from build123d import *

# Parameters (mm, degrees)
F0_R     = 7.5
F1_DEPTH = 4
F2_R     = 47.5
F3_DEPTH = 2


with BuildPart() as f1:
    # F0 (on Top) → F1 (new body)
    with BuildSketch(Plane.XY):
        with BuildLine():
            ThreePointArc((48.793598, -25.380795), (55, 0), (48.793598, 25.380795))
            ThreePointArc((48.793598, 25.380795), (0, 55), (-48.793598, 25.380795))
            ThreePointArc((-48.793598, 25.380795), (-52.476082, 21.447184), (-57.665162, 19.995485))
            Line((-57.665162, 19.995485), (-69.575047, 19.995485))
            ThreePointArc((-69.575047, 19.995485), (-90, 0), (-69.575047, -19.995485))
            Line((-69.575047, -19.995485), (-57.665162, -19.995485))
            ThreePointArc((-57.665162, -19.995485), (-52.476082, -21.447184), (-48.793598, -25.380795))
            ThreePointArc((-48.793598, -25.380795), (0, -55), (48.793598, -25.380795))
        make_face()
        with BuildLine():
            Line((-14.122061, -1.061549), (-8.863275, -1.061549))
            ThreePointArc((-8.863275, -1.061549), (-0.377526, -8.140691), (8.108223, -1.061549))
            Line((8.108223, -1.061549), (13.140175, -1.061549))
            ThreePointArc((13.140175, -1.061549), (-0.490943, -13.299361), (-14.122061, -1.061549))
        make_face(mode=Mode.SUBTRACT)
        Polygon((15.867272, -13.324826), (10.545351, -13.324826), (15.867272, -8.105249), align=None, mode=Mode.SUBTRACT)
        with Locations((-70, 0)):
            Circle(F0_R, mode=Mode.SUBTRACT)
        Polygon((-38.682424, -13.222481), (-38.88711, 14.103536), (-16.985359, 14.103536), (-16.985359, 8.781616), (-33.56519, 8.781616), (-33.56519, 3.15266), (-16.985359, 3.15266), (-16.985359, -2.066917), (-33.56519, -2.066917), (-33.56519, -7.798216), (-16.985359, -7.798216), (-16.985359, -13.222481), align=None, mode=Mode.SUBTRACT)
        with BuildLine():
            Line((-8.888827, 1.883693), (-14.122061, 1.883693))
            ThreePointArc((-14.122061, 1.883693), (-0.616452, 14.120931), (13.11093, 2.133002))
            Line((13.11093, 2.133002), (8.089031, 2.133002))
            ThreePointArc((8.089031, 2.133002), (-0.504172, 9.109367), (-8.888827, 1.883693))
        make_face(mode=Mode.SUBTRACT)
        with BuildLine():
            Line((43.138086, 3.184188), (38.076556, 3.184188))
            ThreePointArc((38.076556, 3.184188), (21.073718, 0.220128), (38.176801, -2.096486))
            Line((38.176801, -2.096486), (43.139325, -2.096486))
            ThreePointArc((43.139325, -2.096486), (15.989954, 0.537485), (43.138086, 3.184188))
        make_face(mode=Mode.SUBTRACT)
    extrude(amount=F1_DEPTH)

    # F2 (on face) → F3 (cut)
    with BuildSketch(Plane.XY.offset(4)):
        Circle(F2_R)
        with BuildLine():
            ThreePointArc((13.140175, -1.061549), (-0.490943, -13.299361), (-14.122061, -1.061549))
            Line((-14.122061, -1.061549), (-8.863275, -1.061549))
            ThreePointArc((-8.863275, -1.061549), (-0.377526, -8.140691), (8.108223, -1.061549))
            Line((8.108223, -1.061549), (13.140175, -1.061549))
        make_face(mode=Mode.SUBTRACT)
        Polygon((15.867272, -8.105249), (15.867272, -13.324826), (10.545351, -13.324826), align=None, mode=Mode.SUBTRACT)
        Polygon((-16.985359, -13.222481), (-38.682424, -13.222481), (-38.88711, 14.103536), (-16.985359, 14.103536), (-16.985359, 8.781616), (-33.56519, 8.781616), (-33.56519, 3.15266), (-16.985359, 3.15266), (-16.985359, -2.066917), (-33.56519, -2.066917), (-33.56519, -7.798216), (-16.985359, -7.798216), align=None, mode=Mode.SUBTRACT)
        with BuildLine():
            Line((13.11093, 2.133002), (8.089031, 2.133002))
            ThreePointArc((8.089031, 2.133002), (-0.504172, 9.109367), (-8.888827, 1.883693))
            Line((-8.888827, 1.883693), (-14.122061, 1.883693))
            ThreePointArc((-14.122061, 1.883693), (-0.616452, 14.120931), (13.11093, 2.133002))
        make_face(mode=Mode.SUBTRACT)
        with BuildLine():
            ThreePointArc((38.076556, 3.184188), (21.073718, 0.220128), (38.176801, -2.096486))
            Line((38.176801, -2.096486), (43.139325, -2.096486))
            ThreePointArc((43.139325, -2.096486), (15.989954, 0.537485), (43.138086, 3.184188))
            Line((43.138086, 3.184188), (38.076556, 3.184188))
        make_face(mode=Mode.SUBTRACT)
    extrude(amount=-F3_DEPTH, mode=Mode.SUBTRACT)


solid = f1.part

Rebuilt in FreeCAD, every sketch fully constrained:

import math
import FreeCAD as App
import Part
import Sketcher

V = App.Vector

doc = App.newDocument("Part")
body = doc.addObject("PartDesign::Body", "Body")

# Sketch on XY plane
sketch1 = body.newObject("Sketcher::SketchObject", "Sketch")
sketch1.AttachmentSupport = (doc.getObject("XY_Plane"), [""])
sketch1.MapMode = "FlatFace"
sketch1.addGeometry([
    Part.ArcOfCircle(Part.Circle(V(0, 0, 0), V(0, 0, 1), 55), math.radians(-27), math.radians(27)),  # 0
    Part.ArcOfCircle(Part.Circle(V(0, 0, 0), V(0, 0, 1), 55), math.radians(27), math.radians(153)),  # 1
    Part.ArcOfCircle(Part.Circle(V(-57.7, 30, 0), V(0, 0, 1), 10), math.radians(-90), math.radians(-27)),  # 2
    Part.LineSegment(V(-57.7, 20, 0), V(-69.6, 20, 0)),  # 3
    Part.ArcOfCircle(Part.Circle(V(-70, 0, 0), V(0, 0, 1), 20), math.radians(89), math.radians(271)),  # 4
    Part.LineSegment(V(-69.6, -20, 0), V(-57.7, -20, 0)),  # 5
    Part.ArcOfCircle(Part.Circle(V(-57.7, -30, 0), V(0, 0, 1), 10), math.radians(27), math.radians(90)),  # 6
    Part.ArcOfCircle(Part.Circle(V(0, 0, 0), V(0, 0, 1), 55), math.radians(-153), math.radians(-27)),  # 7
    Part.Circle(V(-70, 0, 0), V(0, 0, 1), 7.5),  # 8
    Part.LineSegment(V(-17, -13.2, 0), V(-38.7, -13.2, 0)),  # 9
    Part.LineSegment(V(-38.7, -13.2, 0), V(-38.9, 14.1, 0)),  # 10
    Part.LineSegment(V(-38.9, 14.1, 0), V(-17, 14.1, 0)),  # 11
    Part.LineSegment(V(-17, 14.1, 0), V(-17, 8.8, 0)),  # 12
    Part.LineSegment(V(-17, 8.8, 0), V(-33.6, 8.8, 0)),  # 13
    Part.LineSegment(V(-33.6, 8.8, 0), V(-33.6, 3.2, 0)),  # 14
    Part.LineSegment(V(-33.6, 3.2, 0), V(-17, 3.2, 0)),  # 15
    Part.LineSegment(V(-17, 3.2, 0), V(-17, -2.1, 0)),  # 16
    Part.LineSegment(V(-17, -2.1, 0), V(-33.6, -2.1, 0)),  # 17
    Part.LineSegment(V(-33.6, -2.1, 0), V(-33.6, -7.8, 0)),  # 18
    Part.LineSegment(V(-33.6, -7.8, 0), V(-17, -7.8, 0)),  # 19
    Part.LineSegment(V(-17, -7.8, 0), V(-17, -13.2, 0)),  # 20
    Part.ArcOfCircle(Part.Circle(V(-0.5, 0.4, 0), V(0, 0, 1), 13.7), math.radians(-174), math.radians(-6)),  # 21
    Part.LineSegment(V(-14.1, -1.1, 0), V(-8.9, -1.1, 0)),  # 22
    Part.ArcOfCircle(Part.Circle(V(-0.4, 0.5, 0), V(0, 0, 1), 8.6), math.radians(-170), math.radians(-10)),  # 23
    Part.LineSegment(V(8.1, -1.1, 0), V(13.1, -1.1, 0)),  # 24
    Part.LineSegment(V(15.9, -8.1, 0), V(15.9, -13.3, 0)),  # 25
    Part.LineSegment(V(15.9, -13.3, 0), V(10.5, -13.3, 0)),  # 26
    Part.LineSegment(V(10.5, -13.3, 0), V(15.9, -8.1, 0)),  # 27
    Part.ArcOfCircle(Part.Circle(V(29.7, 0.5, 0), V(0, 0, 1), 13.7), math.radians(11), math.radians(349)),  # 28
    Part.LineSegment(V(43.1, 3.2, 0), V(38.1, 3.2, 0)),  # 29
    Part.ArcOfCircle(Part.Circle(V(29.8, 0.4, 0), V(0, 0, 1), 8.7), math.radians(19), math.radians(343)),  # 30
    Part.LineSegment(V(38.2, -2.1, 0), V(43.1, -2.1, 0)),  # 31
    Part.ArcOfCircle(Part.Circle(V(-0.4, 0.5, 0), V(0, 0, 1), 8.6), math.radians(11), math.radians(171)),  # 32
    Part.LineSegment(V(-8.9, 1.9, 0), V(-14.1, 1.9, 0)),  # 33
    Part.ArcOfCircle(Part.Circle(V(-0.5, 0.4, 0), V(0, 0, 1), 13.7), math.radians(7), math.radians(174)),  # 34
    Part.LineSegment(V(13.1, 2.1, 0), V(8.1, 2.1, 0)),  # 35
], False)
sketch1.addConstraint([
    Sketcher.Constraint("Tangent", 0, 2, 1, 1),
    Sketcher.Constraint("Tangent", 1, 2, 2, 2),
    Sketcher.Constraint("Tangent", 2, 1, 3, 1),
    Sketcher.Constraint("Coincident", 3, 2, 4, 1),
    Sketcher.Constraint("Coincident", 4, 2, 5, 1),
    Sketcher.Constraint("Tangent", 5, 2, 6, 2),
    Sketcher.Constraint("Tangent", 6, 1, 7, 1),
    Sketcher.Constraint("Tangent", 7, 2, 0, 1),
    Sketcher.Constraint("Coincident", 9, 2, 10, 1),
    Sketcher.Constraint("Coincident", 10, 2, 11, 1),
    Sketcher.Constraint("Coincident", 11, 2, 12, 1),
    Sketcher.Constraint("Coincident", 12, 2, 13, 1),
    Sketcher.Constraint("Coincident", 13, 2, 14, 1),
    Sketcher.Constraint("Coincident", 14, 2, 15, 1),
    Sketcher.Constraint("Coincident", 15, 2, 16, 1),
    Sketcher.Constraint("Coincident", 16, 2, 17, 1),
    Sketcher.Constraint("Coincident", 17, 2, 18, 1),
    Sketcher.Constraint("Coincident", 18, 2, 19, 1),
    Sketcher.Constraint("Coincident", 19, 2, 20, 1),
    Sketcher.Constraint("Coincident", 20, 2, 9, 1),
    Sketcher.Constraint("Coincident", 21, 1, 22, 1),
    Sketcher.Constraint("Coincident", 22, 2, 23, 1),
    Sketcher.Constraint("Coincident", 23, 2, 24, 1),
    Sketcher.Constraint("Coincident", 24, 2, 21, 2),
    Sketcher.Constraint("Coincident", 25, 2, 26, 1),
    Sketcher.Constraint("Coincident", 26, 2, 27, 1),
    Sketcher.Constraint("Coincident", 27, 2, 25, 1),
    Sketcher.Constraint("Coincident", 28, 1, 29, 1),
    Sketcher.Constraint("Coincident", 29, 2, 30, 1),
    Sketcher.Constraint("Coincident", 30, 2, 31, 1),
    Sketcher.Constraint("Coincident", 31, 2, 28, 2),
    Sketcher.Constraint("Coincident", 32, 2, 33, 1),
    Sketcher.Constraint("Coincident", 33, 2, 34, 2),
    Sketcher.Constraint("Coincident", 34, 1, 35, 1),
    Sketcher.Constraint("Coincident", 35, 2, 32, 1),
    Sketcher.Constraint("Horizontal", 3),
    Sketcher.Constraint("Horizontal", 5),
    Sketcher.Constraint("Horizontal", 9),
    Sketcher.Constraint("Horizontal", 11),
    Sketcher.Constraint("Vertical", 12),
    Sketcher.Constraint("Horizontal", 13),
    Sketcher.Constraint("Vertical", 14),
    Sketcher.Constraint("Horizontal", 15),
    Sketcher.Constraint("Vertical", 16),
    Sketcher.Constraint("Horizontal", 17),
    Sketcher.Constraint("Vertical", 18),
    Sketcher.Constraint("Horizontal", 19),
    Sketcher.Constraint("Vertical", 20),
    Sketcher.Constraint("Horizontal", 22),
    Sketcher.Constraint("Horizontal", 24),
    Sketcher.Constraint("Vertical", 25),
    Sketcher.Constraint("Horizontal", 26),
    Sketcher.Constraint("Horizontal", 29),
    Sketcher.Constraint("Horizontal", 31),
    Sketcher.Constraint("Horizontal", 33),
    Sketcher.Constraint("Horizontal", 35),
    Sketcher.Constraint("Coincident", 0, 3, -1, 1),
    Sketcher.Constraint("Coincident", 8, 3, 4, 3),
    Sketcher.Constraint("Coincident", 32, 3, 23, 3),
    Sketcher.Constraint("Coincident", 34, 3, 21, 3),
    Sketcher.Constraint("Equal", 2, 6),
    Sketcher.Constraint("Equal", 1, 7),
    Sketcher.Constraint("Equal", 23, 32),
    Sketcher.Constraint("Equal", 21, 34),
    Sketcher.Constraint("Symmetric", 0, 2, 6, 1, -1, 1),
    Sketcher.Constraint("Symmetric", 3, 2, 4, 2, -1),
    Sketcher.Constraint("Horizontal", 6, 1, 7, 2),
    Sketcher.Constraint("Horizontal", 22, 2, 23, 2),
    Sketcher.Constraint("Vertical", 12, 2, 15, 2),
    Sketcher.Constraint("Vertical", 14, 2, 17, 2),
    Sketcher.Constraint("Vertical", 16, 2, 19, 2),
    Sketcher.Constraint("Vertical", 21, 1, 33, 2),
    Sketcher.Constraint("Equal", 26, 12),
    Sketcher.Constraint("Equal", 16, 25),
    Sketcher.Constraint("Diameter", 8, 15.0),
    Sketcher.Constraint("Radius", 1, 54.999999),
    Sketcher.Constraint("Radius", 2, 10.000002),
    Sketcher.Constraint("Radius", 4, 20.0),
    Sketcher.Constraint("DistanceX", 4, 3, -1, 1, 70.0),
    Sketcher.Constraint("Radius", 28, 13.702768),
    Sketcher.Constraint("DistanceX", 35, 2, 35, 1, 5.021899),
    Sketcher.Constraint("DistanceY", 18, 2, 18, 1, 5.731299),
    Sketcher.Constraint("DistanceY", -1, 1, 34, 1, 2.133002),
    Sketcher.Constraint("Radius", 21, 13.710434),
    Sketcher.Constraint("Radius", 23, 8.625494),
    Sketcher.Constraint("Radius", 30, 8.732457),
    Sketcher.Constraint("DistanceX", 11, 1, 11, 2, 21.901751),
    Sketcher.Constraint("DistanceX", 13, 2, 13, 1, 16.579831),
    Sketcher.Constraint("DistanceX", 24, 1, 24, 2, 5.031952),
    Sketcher.Constraint("DistanceX", 26, 2, 26, 1, 5.321921),
    Sketcher.Constraint("DistanceX", 29, 2, 29, 1, 5.06153),
    Sketcher.Constraint("DistanceX", -1, 1, 30, 2, 38.176801),
    Sketcher.Constraint("DistanceY", 1, 3, 23, 3, 0.484802),
    Sketcher.Constraint("DistanceX", 0, 3, 30, 3, 29.804599),
    Sketcher.Constraint("DistanceY", 28, 3, 0, 2, 24.840099),
    Sketcher.Constraint("DistanceX", 32, 3, 24, 2, 13.517701),
    Sketcher.Constraint("DistanceY", 27, 2, 24, 2, 7.0437),
    Sketcher.Constraint("DistanceX", 3, 2, 3, 1, 11.909885),
    Sketcher.Constraint("DistanceX", 9, 2, 9, 1, 21.697065),
    Sketcher.Constraint("DistanceX", 31, 1, 31, 2, 4.962524),
    Sketcher.Constraint("DistanceY", 14, 2, 14, 1, 5.628956),
    Sketcher.Constraint("DistanceY", 16, 2, 16, 1, 5.219577),
    Sketcher.Constraint("DistanceY", 20, 2, 20, 1, 5.424265),
    Sketcher.Constraint("DistanceY", -1, 1, 30, 3, 0.38587),
    Sketcher.Constraint("DistanceY", 9, 2, -1, 1, 13.222481),
    Sketcher.Constraint("DistanceX", 10, 2, -1, 1, 38.88711),
    Sketcher.Constraint("DistanceX", 21, 1, -1, 1, 14.122061),
    Sketcher.Constraint("DistanceX", -1, 1, 26, 2, 10.545351),
])
pad1 = body.newObject("PartDesign::Pad", "Pad")
pad1.Profile = sketch1
pad1.Length = 4

# Sketch on XY plane
sketch2 = body.newObject("Sketcher::SketchObject", "Sketch001")
sketch2.AttachmentSupport = (doc.getObject("XY_Plane"), [""])
sketch2.MapMode = "FlatFace"
sketch2.AttachmentOffset = App.Placement(V(0, 0, 4), App.Rotation())
sketch2.addGeometry([
    Part.Circle(V(0, 0, 0), V(0, 0, 1), 47.5),  # 0
    Part.LineSegment(V(8.1, -1.1, 0), V(13.1, -1.1, 0)),  # 1
    Part.ArcOfCircle(Part.Circle(V(-0.5, 0.4, 0), V(0, 0, 1), 13.7), math.radians(-174), math.radians(-6)),  # 2
    Part.LineSegment(V(-14.1, -1.1, 0), V(-8.9, -1.1, 0)),  # 3
    Part.ArcOfCircle(Part.Circle(V(-0.4, 0.5, 0), V(0, 0, 1), 8.6), math.radians(-170), math.radians(-10)),  # 4
    Part.LineSegment(V(-17, -7.8, 0), V(-17, -13.2, 0)),  # 5
    Part.LineSegment(V(-17, -13.2, 0), V(-38.7, -13.2, 0)),  # 6
    Part.LineSegment(V(-38.7, -13.2, 0), V(-38.9, 14.1, 0)),  # 7
    Part.LineSegment(V(-38.9, 14.1, 0), V(-17, 14.1, 0)),  # 8
    Part.LineSegment(V(-17, 14.1, 0), V(-17, 8.8, 0)),  # 9
    Part.LineSegment(V(-17, 8.8, 0), V(-33.6, 8.8, 0)),  # 10
    Part.LineSegment(V(-33.6, 8.8, 0), V(-33.6, 3.2, 0)),  # 11
    Part.LineSegment(V(-33.6, 3.2, 0), V(-17, 3.2, 0)),  # 12
    Part.LineSegment(V(-17, 3.2, 0), V(-17, -2.1, 0)),  # 13
    Part.LineSegment(V(-17, -2.1, 0), V(-33.6, -2.1, 0)),  # 14
    Part.LineSegment(V(-33.6, -2.1, 0), V(-33.6, -7.8, 0)),  # 15
    Part.LineSegment(V(-33.6, -7.8, 0), V(-17, -7.8, 0)),  # 16
    Part.LineSegment(V(10.5, -13.3, 0), V(15.9, -8.1, 0)),  # 17
    Part.LineSegment(V(15.9, -8.1, 0), V(15.9, -13.3, 0)),  # 18
    Part.LineSegment(V(15.9, -13.3, 0), V(10.5, -13.3, 0)),  # 19
    Part.ArcOfCircle(Part.Circle(V(-0.5, 0.4, 0), V(0, 0, 1), 13.7), math.radians(7), math.radians(174)),  # 20
    Part.LineSegment(V(13.1, 2.1, 0), V(8.1, 2.1, 0)),  # 21
    Part.ArcOfCircle(Part.Circle(V(-0.4, 0.5, 0), V(0, 0, 1), 8.6), math.radians(11), math.radians(171)),  # 22
    Part.LineSegment(V(-8.9, 1.9, 0), V(-14.1, 1.9, 0)),  # 23
    Part.LineSegment(V(43.1, 3.2, 0), V(38.1, 3.2, 0)),  # 24
    Part.ArcOfCircle(Part.Circle(V(29.8, 0.4, 0), V(0, 0, 1), 8.7), math.radians(19), math.radians(343)),  # 25
    Part.LineSegment(V(38.2, -2.1, 0), V(43.1, -2.1, 0)),  # 26
    Part.ArcOfCircle(Part.Circle(V(29.7, 0.5, 0), V(0, 0, 1), 13.7), math.radians(11), math.radians(349)),  # 27
], False)
sketch2.addConstraint([
    Sketcher.Constraint("Coincident", 1, 2, 2, 2),
    Sketcher.Constraint("Coincident", 2, 1, 3, 1),
    Sketcher.Constraint("Coincident", 3, 2, 4, 1),
    Sketcher.Constraint("Coincident", 4, 2, 1, 1),
    Sketcher.Constraint("Coincident", 5, 2, 6, 1),
    Sketcher.Constraint("Coincident", 6, 2, 7, 1),
    Sketcher.Constraint("Coincident", 7, 2, 8, 1),
    Sketcher.Constraint("Coincident", 8, 2, 9, 1),
    Sketcher.Constraint("Coincident", 9, 2, 10, 1),
    Sketcher.Constraint("Coincident", 10, 2, 11, 1),
    Sketcher.Constraint("Coincident", 11, 2, 12, 1),
    Sketcher.Constraint("Coincident", 12, 2, 13, 1),
    Sketcher.Constraint("Coincident", 13, 2, 14, 1),
    Sketcher.Constraint("Coincident", 14, 2, 15, 1),
    Sketcher.Constraint("Coincident", 15, 2, 16, 1),
    Sketcher.Constraint("Coincident", 16, 2, 5, 1),
    Sketcher.Constraint("Coincident", 17, 2, 18, 1),
    Sketcher.Constraint("Coincident", 18, 2, 19, 1),
    Sketcher.Constraint("Coincident", 19, 2, 17, 1),
    Sketcher.Constraint("Coincident", 20, 1, 21, 1),
    Sketcher.Constraint("Coincident", 21, 2, 22, 1),
    Sketcher.Constraint("Coincident", 22, 2, 23, 1),
    Sketcher.Constraint("Coincident", 23, 2, 20, 2),
    Sketcher.Constraint("Coincident", 24, 2, 25, 1),
    Sketcher.Constraint("Coincident", 25, 2, 26, 1),
    Sketcher.Constraint("Coincident", 26, 2, 27, 2),
    Sketcher.Constraint("Coincident", 27, 1, 24, 1),
    Sketcher.Constraint("Horizontal", 1),
    Sketcher.Constraint("Horizontal", 3),
    Sketcher.Constraint("Vertical", 5),
    Sketcher.Constraint("Horizontal", 6),
    Sketcher.Constraint("Horizontal", 8),
    Sketcher.Constraint("Vertical", 9),
    Sketcher.Constraint("Horizontal", 10),
    Sketcher.Constraint("Vertical", 11),
    Sketcher.Constraint("Horizontal", 12),
    Sketcher.Constraint("Vertical", 13),
    Sketcher.Constraint("Horizontal", 14),
    Sketcher.Constraint("Vertical", 15),
    Sketcher.Constraint("Horizontal", 16),
    Sketcher.Constraint("Vertical", 18),
    Sketcher.Constraint("Horizontal", 19),
    Sketcher.Constraint("Horizontal", 21),
    Sketcher.Constraint("Horizontal", 23),
    Sketcher.Constraint("Horizontal", 24),
    Sketcher.Constraint("Horizontal", 26),
    Sketcher.Constraint("Coincident", 0, 3, -1, 1),
    Sketcher.Constraint("Coincident", 20, 3, 2, 3),
    Sketcher.Constraint("Coincident", 22, 3, 4, 3),
    Sketcher.Constraint("Equal", 2, 20),
    Sketcher.Constraint("Equal", 4, 22),
    Sketcher.Constraint("Horizontal", 1, 2, 2, 1),
    Sketcher.Constraint("Vertical", 5, 2, 8, 2),
    Sketcher.Constraint("Vertical", 9, 2, 12, 2),
    Sketcher.Constraint("Vertical", 11, 2, 14, 2),
    Sketcher.Constraint("Vertical", 2, 1, 23, 2),
    Sketcher.Constraint("Equal", 19, 9),
    Sketcher.Constraint("Equal", 13, 18),
    Sketcher.Constraint("Diameter", 0, 95.0),
    Sketcher.Constraint("Radius", 27, 13.702768),
    Sketcher.Constraint("DistanceX", 21, 2, 21, 1, 5.021899),
    Sketcher.Constraint("DistanceY", 15, 2, 15, 1, 5.731299),
    Sketcher.Constraint("DistanceY", -1, 1, 20, 1, 2.133002),
    Sketcher.Constraint("Radius", 2, 13.710434),
    Sketcher.Constraint("Radius", 4, 8.625494),
    Sketcher.Constraint("Radius", 25, 8.732457),
    Sketcher.Constraint("DistanceX", 1, 1, 1, 2, 5.031952),
    Sketcher.Constraint("DistanceX", 8, 1, 8, 2, 21.901751),
    Sketcher.Constraint("DistanceX", 10, 2, 10, 1, 16.579831),
    Sketcher.Constraint("DistanceX", 19, 2, 19, 1, 5.321921),
    Sketcher.Constraint("DistanceX", 24, 2, 24, 1, 5.06153),
    Sketcher.Constraint("DistanceX", -1, 1, 25, 2, 38.176801),
    Sketcher.Constraint("DistanceY", 25, 3, 20, 3, 0.025202),
    Sketcher.Constraint("DistanceX", 22, 3, 1, 2, 13.517701),
    Sketcher.Constraint("DistanceY", 17, 2, 1, 2, 7.0437),
    Sketcher.Constraint("DistanceY", 22, 3, 20, 1, 1.648199),
    Sketcher.Constraint("DistanceX", 25, 3, 25, 2, 8.372199),
    Sketcher.Constraint("DistanceX", 6, 2, 6, 1, 21.697065),
    Sketcher.Constraint("DistanceX", 26, 1, 26, 2, 4.962524),
    Sketcher.Constraint("DistanceY", 5, 2, 5, 1, 5.424265),
    Sketcher.Constraint("DistanceY", 11, 2, 11, 1, 5.628956),
    Sketcher.Constraint("DistanceY", 13, 2, 13, 1, 5.219577),
    Sketcher.Constraint("DistanceX", 2, 1, -1, 1, 14.122061),
    Sketcher.Constraint("DistanceX", 5, 2, -1, 1, 16.985359),
    Sketcher.Constraint("DistanceY", 5, 2, -1, 1, 13.222481),
    Sketcher.Constraint("DistanceX", -1, 1, 19, 2, 10.545351),
    Sketcher.Constraint("DistanceX", 27, 3, 25, 3, 0.11188),
])
pocket1 = body.newObject("PartDesign::Pocket", "Pocket")
pocket1.Profile = sketch2
pocket1.Length = 2

doc.recompute()
